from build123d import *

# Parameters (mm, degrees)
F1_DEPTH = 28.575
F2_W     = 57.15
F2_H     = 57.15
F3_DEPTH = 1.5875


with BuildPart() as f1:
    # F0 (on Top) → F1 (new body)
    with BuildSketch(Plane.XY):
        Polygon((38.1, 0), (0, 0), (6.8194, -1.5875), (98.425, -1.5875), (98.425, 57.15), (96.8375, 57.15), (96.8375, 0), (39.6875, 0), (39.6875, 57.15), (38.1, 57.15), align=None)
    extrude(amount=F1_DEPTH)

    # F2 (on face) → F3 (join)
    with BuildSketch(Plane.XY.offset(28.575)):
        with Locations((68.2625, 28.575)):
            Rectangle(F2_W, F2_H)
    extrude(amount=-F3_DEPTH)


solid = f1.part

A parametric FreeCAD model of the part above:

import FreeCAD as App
import Part
import Sketcher

V = App.Vector
Q = App.Units.Quantity

doc = App.newDocument("Part")
body = doc.addObject("PartDesign::Body", "Body")

# Sketch on XY plane
sketch1 = doc.addObject("Sketcher::SketchObject", "Sketch")
body.addObject(sketch1)
sketch1.AttachmentSupport = (doc.XY_Plane, [""])
sketch1.MapMode = "FlatFace"
sketch1.addGeometry(Part.LineSegment(V(38.1, 0, 0), V(0, 0, 0)), False)
sketch1.addGeometry(Part.LineSegment(V(0, 0, 0), V(6.8, -1.6, 0)), False)
sketch1.addGeometry(Part.LineSegment(V(6.8, -1.6, 0), V(98.4, -1.6, 0)), False)
sketch1.addGeometry(Part.LineSegment(V(98.4, -1.6, 0), V(98.4, 57.1, 0)), False)
sketch1.addGeometry(Part.LineSegment(V(98.4, 57.1, 0), V(96.8, 57.1, 0)), False)
sketch1.addGeometry(Part.LineSegment(V(96.8, 57.1, 0), V(96.8, 0, 0)), False)
sketch1.addGeometry(Part.LineSegment(V(96.8, 0, 0), V(39.7, 0, 0)), False)
sketch1.addGeometry(Part.LineSegment(V(39.7, 0, 0), V(39.7, 57.1, 0)), False)
sketch1.addGeometry(Part.LineSegment(V(39.7, 57.1, 0), V(38.1, 57.1, 0)), False)
sketch1.addGeometry(Part.LineSegment(V(38.1, 57.1, 0), V(38.1, 0, 0)), False)
sketch1.addConstraint(Sketcher.Constraint("Coincident", 0, 2, 1, 1))
sketch1.addConstraint(Sketcher.Constraint("Coincident", 1, 2, 2, 1))
sketch1.addConstraint(Sketcher.Constraint("Coincident", 2, 2, 3, 1))
sketch1.addConstraint(Sketcher.Constraint("Coincident", 3, 2, 4, 1))
sketch1.addConstraint(Sketcher.Constraint("Coincident", 4, 2, 5, 1))
sketch1.addConstraint(Sketcher.Constraint("Coincident", 5, 2, 6, 1))
sketch1.addConstraint(Sketcher.Constraint("Coincident", 6, 2, 7, 1))
sketch1.addConstraint(Sketcher.Constraint("Coincident", 7, 2, 8, 1))
sketch1.addConstraint(Sketcher.Constraint("Coincident", 8, 2, 9, 1))
sketch1.addConstraint(Sketcher.Constraint("Coincident", 9, 2, 0, 1))
sketch1.addConstraint(Sketcher.Constraint("Horizontal", 0))
sketch1.addConstraint(Sketcher.Constraint("Horizontal", 2))
sketch1.addConstraint(Sketcher.Constraint("Vertical", 3))
sketch1.addConstraint(Sketcher.Constraint("Horizontal", 4))
sketch1.addConstraint(Sketcher.Constraint("Vertical", 5))
sketch1.addConstraint(Sketcher.Constraint("Horizontal", 6))
sketch1.addConstraint(Sketcher.Constraint("Vertical", 7))
sketch1.addConstraint(Sketcher.Constraint("Horizontal", 8))
sketch1.addConstraint(Sketcher.Constraint("Vertical", 9))
sketch1.addConstraint(Sketcher.Constraint("Coincident", 0, 2, -1, 1))
sketch1.addConstraint(Sketcher.Constraint("PointOnObject", 5, 2, -1))
sketch1.addConstraint(Sketcher.Constraint("Horizontal", 4, 2, 7, 2))
sketch1.addConstraint(Sketcher.Constraint("Equal", 4, 8))
sketch1.addConstraint(Sketcher.Constraint("Equal", 6, 5))
sketch1.addConstraint(Sketcher.Constraint("DistanceX", 0, 2, 0, 1, Q("1.5 in")))
sketch1.addConstraint(Sketcher.Constraint("DistanceX", 6, 2, 6, 1, Q("2.25 in")))
sketch1.addConstraint(Sketcher.Constraint("DistanceX", 4, 2, 4, 1, Q("0.0625 in")))
sketch1.addConstraint(Sketcher.Constraint("DistanceY", 3, 1, 3, 2, Q("2.3125 in")))
sketch1.addConstraint(Sketcher.Constraint("DistanceX", 2, 1, 2, 2, Q("91.6056 mm")))
pad1 = doc.addObject("PartDesign::Pad", "Pad")
body.addObject(pad1)
pad1.Profile = sketch1
pad1.Length = Q("1.125 in")

# Sketch on XY plane
sketch2 = doc.addObject("Sketcher::SketchObject", "Sketch001")
body.addObject(sketch2)
sketch2.AttachmentSupport = (doc.XY_Plane, [""])
sketch2.MapMode = "FlatFace"
sketch2.AttachmentOffset = App.Placement(V(0, 0, 1.125 * 25.4), App.Rotation())
sketch2.addGeometry(Part.LineSegment(V(40, 57, 0), V(40, 0, 0)), False)
sketch2.addGeometry(Part.LineSegment(V(40, 0, 0), V(97, 0, 0)), False)
sketch2.addGeometry(Part.LineSegment(V(97, 0, 0), V(97, 57, 0)), False)
sketch2.addGeometry(Part.LineSegment(V(97, 57, 0), V(40, 57, 0)), False)
sketch2.addConstraint(Sketcher.Constraint("Coincident", 0, 2, 1, 1))
sketch2.addConstraint(Sketcher.Constraint("Coincident", 1, 2, 2, 1))
sketch2.addConstraint(Sketcher.Constraint("Coincident", 2, 2, 3, 1))
sketch2.addConstraint(Sketcher.Constraint("Coincident", 3, 2, 0, 1))
sketch2.addConstraint(Sketcher.Constraint("Vertical", 0))
sketch2.addConstraint(Sketcher.Constraint("Horizontal", 1))
sketch2.addConstraint(Sketcher.Constraint("Vertical", 2))
sketch2.addConstraint(Sketcher.Constraint("Horizontal", 3))
sketch2.addConstraint(Sketcher.Constraint("PointOnObject", 0, 2, -1))
sketch2.addConstraint(Sketcher.Constraint("Equal", 3, 0))
sketch2.addConstraint(Sketcher.Constraint("DistanceX", 1, 1, 1, 2, Q("2.25 in")))
sketch2.addConstraint(Sketcher.Constraint("DistanceX", -1, 1, 0, 2, Q("1.5625 in")))
pad2 = doc.addObject("PartDesign::Pad", "Pad001")
body.addObject(pad2)
pad2.Profile = sketch2
pad2.Length = Q("0.0625 in")
pad2.Reversed = True

doc.recompute()
